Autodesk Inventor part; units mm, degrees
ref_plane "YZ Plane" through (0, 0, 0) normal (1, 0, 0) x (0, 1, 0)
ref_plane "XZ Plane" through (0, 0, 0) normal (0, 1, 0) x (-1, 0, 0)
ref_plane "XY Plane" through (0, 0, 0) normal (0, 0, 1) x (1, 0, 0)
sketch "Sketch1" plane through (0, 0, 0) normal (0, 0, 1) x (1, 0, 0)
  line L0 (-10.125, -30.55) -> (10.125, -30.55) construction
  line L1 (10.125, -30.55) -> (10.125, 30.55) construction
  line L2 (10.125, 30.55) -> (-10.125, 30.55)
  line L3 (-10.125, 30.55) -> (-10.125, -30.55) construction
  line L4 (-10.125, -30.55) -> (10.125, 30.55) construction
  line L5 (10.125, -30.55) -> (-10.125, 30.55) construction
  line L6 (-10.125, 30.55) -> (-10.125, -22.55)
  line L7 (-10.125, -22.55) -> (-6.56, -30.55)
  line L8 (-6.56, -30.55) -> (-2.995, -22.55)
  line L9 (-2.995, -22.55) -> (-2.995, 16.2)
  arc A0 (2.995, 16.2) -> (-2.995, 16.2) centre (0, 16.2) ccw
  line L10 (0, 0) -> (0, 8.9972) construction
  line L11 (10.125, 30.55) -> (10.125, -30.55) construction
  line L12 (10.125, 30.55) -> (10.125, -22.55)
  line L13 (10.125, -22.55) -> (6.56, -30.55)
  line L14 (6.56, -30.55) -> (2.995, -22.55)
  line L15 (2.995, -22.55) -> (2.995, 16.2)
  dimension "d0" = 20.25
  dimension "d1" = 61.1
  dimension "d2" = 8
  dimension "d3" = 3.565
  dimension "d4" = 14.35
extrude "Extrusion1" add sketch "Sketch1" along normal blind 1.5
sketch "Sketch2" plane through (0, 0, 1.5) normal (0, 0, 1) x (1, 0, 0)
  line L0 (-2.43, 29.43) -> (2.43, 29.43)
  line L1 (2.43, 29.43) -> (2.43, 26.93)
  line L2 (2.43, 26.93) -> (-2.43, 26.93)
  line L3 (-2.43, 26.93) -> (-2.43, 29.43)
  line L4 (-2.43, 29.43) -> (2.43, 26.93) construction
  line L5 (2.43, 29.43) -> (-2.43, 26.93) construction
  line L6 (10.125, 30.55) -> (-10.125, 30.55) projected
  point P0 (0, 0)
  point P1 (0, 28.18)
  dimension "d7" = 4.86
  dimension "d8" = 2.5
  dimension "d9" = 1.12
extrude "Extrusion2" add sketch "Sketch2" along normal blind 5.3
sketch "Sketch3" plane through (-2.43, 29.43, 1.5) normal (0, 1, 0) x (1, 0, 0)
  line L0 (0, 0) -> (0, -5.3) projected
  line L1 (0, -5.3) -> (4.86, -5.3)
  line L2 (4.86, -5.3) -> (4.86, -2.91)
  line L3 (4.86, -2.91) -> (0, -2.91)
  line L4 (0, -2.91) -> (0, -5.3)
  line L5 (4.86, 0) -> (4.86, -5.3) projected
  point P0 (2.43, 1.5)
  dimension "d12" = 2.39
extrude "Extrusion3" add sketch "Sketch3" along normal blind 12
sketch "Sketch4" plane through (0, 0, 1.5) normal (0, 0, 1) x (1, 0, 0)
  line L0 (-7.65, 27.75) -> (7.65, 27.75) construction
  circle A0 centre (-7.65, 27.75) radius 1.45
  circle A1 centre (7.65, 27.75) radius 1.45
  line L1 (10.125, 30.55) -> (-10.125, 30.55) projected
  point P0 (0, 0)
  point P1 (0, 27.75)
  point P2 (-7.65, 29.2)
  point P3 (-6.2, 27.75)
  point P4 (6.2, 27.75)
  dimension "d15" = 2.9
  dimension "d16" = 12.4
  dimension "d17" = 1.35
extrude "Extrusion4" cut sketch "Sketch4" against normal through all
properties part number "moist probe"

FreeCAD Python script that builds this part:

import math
import FreeCAD as App
import Part
import Sketcher


def add_polygon(sketch, points):
    """Adds a closed chain of lines whose ends are joined by coincident constraints."""
    first, n = sketch.GeometryCount, len(points)
    for a, b in zip(points, points[1:] + points[:1]):
        sketch.addGeometry(Part.LineSegment(App.Vector(*a, 0), App.Vector(*b, 0)), False)
    for i in range(n):
        sketch.addConstraint(Sketcher.Constraint("Coincident", first + i, 2, first + (i + 1) % n, 1))

doc = App.newDocument("Part")
body = doc.addObject("PartDesign::Body", "Body")

# Sketch on XY plane
sketch1 = doc.addObject("Sketcher::SketchObject", "Sketch")
body.addObject(sketch1)
sketch1.AttachmentSupport = (doc.XY_Plane, [""])
sketch1.MapMode = "FlatFace"
sketch1.addGeometry([
    Part.LineSegment(App.Vector(10.1, -22.6, 0), App.Vector(10.1, 30.6, 0)),  # 0
    Part.LineSegment(App.Vector(10.1, 30.6, 0), App.Vector(-10.1, 30.6, 0)),  # 1
    Part.LineSegment(App.Vector(-10.1, 30.6, 0), App.Vector(-10.1, -22.6, 0)),  # 2
    Part.LineSegment(App.Vector(-10.1, -22.6, 0), App.Vector(-6.6, -30.6, 0)),  # 3
    Part.LineSegment(App.Vector(-6.6, -30.6, 0), App.Vector(-3, -22.6, 0)),  # 4
    Part.LineSegment(App.Vector(-3, -22.6, 0), App.Vector(-3, 16.2, 0)),  # 5
    Part.ArcOfCircle(Part.Circle(App.Vector(0, 16.2, 0), App.Vector(0, 0, 1), 3), math.radians(0), math.radians(180)),  # 6
    Part.LineSegment(App.Vector(3, 16.2, 0), App.Vector(3, -22.6, 0)),  # 7
    Part.LineSegment(App.Vector(3, -22.6, 0), App.Vector(6.6, -30.6, 0)),  # 8
    Part.LineSegment(App.Vector(6.6, -30.6, 0), App.Vector(10.1, -22.6, 0)),  # 9
], False)
sketch1.addConstraint([
    Sketcher.Constraint("Coincident", 0, 2, 1, 1),
    Sketcher.Constraint("Coincident", 1, 2, 2, 1),
    Sketcher.Constraint("Coincident", 2, 2, 3, 1),
    Sketcher.Constraint("Coincident", 3, 2, 4, 1),
    Sketcher.Constraint("Coincident", 4, 2, 5, 1),
    Sketcher.Constraint("Tangent", 5, 2, 6, 2),
    Sketcher.Constraint("Tangent", 6, 1, 7, 1),
    Sketcher.Constraint("Coincident", 7, 2, 8, 1),
    Sketcher.Constraint("Coincident", 8, 2, 9, 1),
    Sketcher.Constraint("Coincident", 9, 2, 0, 1),
    Sketcher.Constraint("Vertical", 0),
    Sketcher.Constraint("Horizontal", 1),
    Sketcher.Constraint("Vertical", 2),
    Sketcher.Constraint("Vertical", 5),
    Sketcher.Constraint("Vertical", 7),
    Sketcher.Constraint("Symmetric", 4, 2, 7, 2, -2),
    Sketcher.Constraint("Symmetric", 3, 2, 8, 2, -2),
    Sketcher.Constraint("Symmetric", 2, 2, 9, 2, -2),
    Sketcher.Constraint("Parallel", 3, 8),
    Sketcher.Constraint("Horizontal", 2, 2, 4, 2),
    Sketcher.Constraint("DistanceY", 3, 2, 2, 2, 8.0),
    Sketcher.Constraint("DistanceX", 1, 2, 1, 1, 20.25),
    Sketcher.Constraint("DistanceY", 3, 2, 1, 2, 61.1),
    Sketcher.Constraint("DistanceY", 6, 3, 0, 2, 14.35),
    Sketcher.Constraint("Radius", 6, 2.995),
    Sketcher.Constraint("DistanceY", -1, 1, 6, 3, 16.2),
])
pad1 = doc.addObject("PartDesign::Pad", "Pad")
body.addObject(pad1)
pad1.Profile = sketch1
pad1.Length = 1.5

# Sketch on XY plane
sketch2 = doc.addObject("Sketcher::SketchObject", "Sketch001")
body.addObject(sketch2)
sketch2.AttachmentSupport = (doc.XY_Plane, [""])
sketch2.MapMode = "FlatFace"
sketch2.AttachmentOffset = App.Placement(App.Vector(0, 0, 1.5), App.Rotation())
add_polygon(sketch2, [(2.4, 29.4), (-2.4, 29.4), (-2.4, 26.9), (2.4, 26.9)])  # lines 0-3
sketch2.addConstraint([
    Sketcher.Constraint("Horizontal", 0),
    Sketcher.Constraint("Vertical", 1),
    Sketcher.Constraint("Horizontal", 2),
    Sketcher.Constraint("Vertical", 3),
    Sketcher.Constraint("DistanceY", 1, 2, 1, 1, 2.5),
    Sketcher.Constraint("DistanceX", 0, 2, 0, 1, 4.86),
    Sketcher.Constraint("DistanceX", 0, 2, -1, 1, 2.43),
    Sketcher.Constraint("DistanceY", -1, 1, 0, 2, 29.43),
])
pad2 = doc.addObject("PartDesign::Pad", "Pad001")
body.addObject(pad2)
pad2.Profile = sketch2
pad2.Length = 5.3

# Sketch on XZ plane
sketch3 = doc.addObject("Sketcher::SketchObject", "Sketch002")
body.addObject(sketch3)
sketch3.AttachmentSupport = (doc.XZ_Plane, [""])
sketch3.MapMode = "FlatFace"
sketch3.AttachmentOffset = App.Placement(App.Vector(0, 0, -29.43), App.Rotation())
add_polygon(sketch3, [(2.4, 4.4), (-2.4, 4.4), (-2.4, 6.8), (2.4, 6.8)])  # lines 0-3
sketch3.addConstraint([
    Sketcher.Constraint("Horizontal", 0),
    Sketcher.Constraint("Vertical", 1),
    Sketcher.Constraint("Horizontal", 2),
    Sketcher.Constraint("Vertical", 3),
    Sketcher.Constraint("DistanceY", 1, 1, 1, 2, 2.39),
    Sketcher.Constraint("DistanceX", 0, 2, 0, 1, 4.86),
    Sketcher.Constraint("DistanceY", -1, 1, 1, 2, 6.8),
    Sketcher.Constraint("DistanceX", 0, 2, -1, 1, 2.43),
])
pad3 = doc.addObject("PartDesign::Pad", "Pad002")
body.addObject(pad3)
pad3.Profile = sketch3
pad3.Length = 12
pad3.Reversed = True

# Sketch on XY plane
sketch4 = doc.addObject("Sketcher::SketchObject", "Sketch003")
body.addObject(sketch4)
sketch4.AttachmentSupport = (doc.XY_Plane, [""])
sketch4.MapMode = "FlatFace"
sketch4.AttachmentOffset = App.Placement(App.Vector(0, 0, 1.5), App.Rotation())
sketch4.addGeometry([
    Part.Circle(App.Vector(-7.7, 27.8, 0), App.Vector(0, 0, 1), 1.4),
    Part.Circle(App.Vector(7.7, 27.8, 0), App.Vector(0, 0, 1), 1.4),
], False)
sketch4.addConstraint([
    Sketcher.Constraint("Equal", 0, 1),
    Sketcher.Constraint("Symmetric", 0, 3, 1, 3, -2),
    Sketcher.Constraint("Diameter", 0, 2.9),
    Sketcher.Constraint("DistanceX", 0, 3, 1, 3, 15.3),
    Sketcher.Constraint("DistanceY", -1, 1, 0, 3, 27.75),
])
pocket1 = doc.addObject("PartDesign::Pocket", "Pocket")
body.addObject(pocket1)
pocket1.Profile = sketch4
pocket1.Type = "ThroughAll"

doc.recompute()
